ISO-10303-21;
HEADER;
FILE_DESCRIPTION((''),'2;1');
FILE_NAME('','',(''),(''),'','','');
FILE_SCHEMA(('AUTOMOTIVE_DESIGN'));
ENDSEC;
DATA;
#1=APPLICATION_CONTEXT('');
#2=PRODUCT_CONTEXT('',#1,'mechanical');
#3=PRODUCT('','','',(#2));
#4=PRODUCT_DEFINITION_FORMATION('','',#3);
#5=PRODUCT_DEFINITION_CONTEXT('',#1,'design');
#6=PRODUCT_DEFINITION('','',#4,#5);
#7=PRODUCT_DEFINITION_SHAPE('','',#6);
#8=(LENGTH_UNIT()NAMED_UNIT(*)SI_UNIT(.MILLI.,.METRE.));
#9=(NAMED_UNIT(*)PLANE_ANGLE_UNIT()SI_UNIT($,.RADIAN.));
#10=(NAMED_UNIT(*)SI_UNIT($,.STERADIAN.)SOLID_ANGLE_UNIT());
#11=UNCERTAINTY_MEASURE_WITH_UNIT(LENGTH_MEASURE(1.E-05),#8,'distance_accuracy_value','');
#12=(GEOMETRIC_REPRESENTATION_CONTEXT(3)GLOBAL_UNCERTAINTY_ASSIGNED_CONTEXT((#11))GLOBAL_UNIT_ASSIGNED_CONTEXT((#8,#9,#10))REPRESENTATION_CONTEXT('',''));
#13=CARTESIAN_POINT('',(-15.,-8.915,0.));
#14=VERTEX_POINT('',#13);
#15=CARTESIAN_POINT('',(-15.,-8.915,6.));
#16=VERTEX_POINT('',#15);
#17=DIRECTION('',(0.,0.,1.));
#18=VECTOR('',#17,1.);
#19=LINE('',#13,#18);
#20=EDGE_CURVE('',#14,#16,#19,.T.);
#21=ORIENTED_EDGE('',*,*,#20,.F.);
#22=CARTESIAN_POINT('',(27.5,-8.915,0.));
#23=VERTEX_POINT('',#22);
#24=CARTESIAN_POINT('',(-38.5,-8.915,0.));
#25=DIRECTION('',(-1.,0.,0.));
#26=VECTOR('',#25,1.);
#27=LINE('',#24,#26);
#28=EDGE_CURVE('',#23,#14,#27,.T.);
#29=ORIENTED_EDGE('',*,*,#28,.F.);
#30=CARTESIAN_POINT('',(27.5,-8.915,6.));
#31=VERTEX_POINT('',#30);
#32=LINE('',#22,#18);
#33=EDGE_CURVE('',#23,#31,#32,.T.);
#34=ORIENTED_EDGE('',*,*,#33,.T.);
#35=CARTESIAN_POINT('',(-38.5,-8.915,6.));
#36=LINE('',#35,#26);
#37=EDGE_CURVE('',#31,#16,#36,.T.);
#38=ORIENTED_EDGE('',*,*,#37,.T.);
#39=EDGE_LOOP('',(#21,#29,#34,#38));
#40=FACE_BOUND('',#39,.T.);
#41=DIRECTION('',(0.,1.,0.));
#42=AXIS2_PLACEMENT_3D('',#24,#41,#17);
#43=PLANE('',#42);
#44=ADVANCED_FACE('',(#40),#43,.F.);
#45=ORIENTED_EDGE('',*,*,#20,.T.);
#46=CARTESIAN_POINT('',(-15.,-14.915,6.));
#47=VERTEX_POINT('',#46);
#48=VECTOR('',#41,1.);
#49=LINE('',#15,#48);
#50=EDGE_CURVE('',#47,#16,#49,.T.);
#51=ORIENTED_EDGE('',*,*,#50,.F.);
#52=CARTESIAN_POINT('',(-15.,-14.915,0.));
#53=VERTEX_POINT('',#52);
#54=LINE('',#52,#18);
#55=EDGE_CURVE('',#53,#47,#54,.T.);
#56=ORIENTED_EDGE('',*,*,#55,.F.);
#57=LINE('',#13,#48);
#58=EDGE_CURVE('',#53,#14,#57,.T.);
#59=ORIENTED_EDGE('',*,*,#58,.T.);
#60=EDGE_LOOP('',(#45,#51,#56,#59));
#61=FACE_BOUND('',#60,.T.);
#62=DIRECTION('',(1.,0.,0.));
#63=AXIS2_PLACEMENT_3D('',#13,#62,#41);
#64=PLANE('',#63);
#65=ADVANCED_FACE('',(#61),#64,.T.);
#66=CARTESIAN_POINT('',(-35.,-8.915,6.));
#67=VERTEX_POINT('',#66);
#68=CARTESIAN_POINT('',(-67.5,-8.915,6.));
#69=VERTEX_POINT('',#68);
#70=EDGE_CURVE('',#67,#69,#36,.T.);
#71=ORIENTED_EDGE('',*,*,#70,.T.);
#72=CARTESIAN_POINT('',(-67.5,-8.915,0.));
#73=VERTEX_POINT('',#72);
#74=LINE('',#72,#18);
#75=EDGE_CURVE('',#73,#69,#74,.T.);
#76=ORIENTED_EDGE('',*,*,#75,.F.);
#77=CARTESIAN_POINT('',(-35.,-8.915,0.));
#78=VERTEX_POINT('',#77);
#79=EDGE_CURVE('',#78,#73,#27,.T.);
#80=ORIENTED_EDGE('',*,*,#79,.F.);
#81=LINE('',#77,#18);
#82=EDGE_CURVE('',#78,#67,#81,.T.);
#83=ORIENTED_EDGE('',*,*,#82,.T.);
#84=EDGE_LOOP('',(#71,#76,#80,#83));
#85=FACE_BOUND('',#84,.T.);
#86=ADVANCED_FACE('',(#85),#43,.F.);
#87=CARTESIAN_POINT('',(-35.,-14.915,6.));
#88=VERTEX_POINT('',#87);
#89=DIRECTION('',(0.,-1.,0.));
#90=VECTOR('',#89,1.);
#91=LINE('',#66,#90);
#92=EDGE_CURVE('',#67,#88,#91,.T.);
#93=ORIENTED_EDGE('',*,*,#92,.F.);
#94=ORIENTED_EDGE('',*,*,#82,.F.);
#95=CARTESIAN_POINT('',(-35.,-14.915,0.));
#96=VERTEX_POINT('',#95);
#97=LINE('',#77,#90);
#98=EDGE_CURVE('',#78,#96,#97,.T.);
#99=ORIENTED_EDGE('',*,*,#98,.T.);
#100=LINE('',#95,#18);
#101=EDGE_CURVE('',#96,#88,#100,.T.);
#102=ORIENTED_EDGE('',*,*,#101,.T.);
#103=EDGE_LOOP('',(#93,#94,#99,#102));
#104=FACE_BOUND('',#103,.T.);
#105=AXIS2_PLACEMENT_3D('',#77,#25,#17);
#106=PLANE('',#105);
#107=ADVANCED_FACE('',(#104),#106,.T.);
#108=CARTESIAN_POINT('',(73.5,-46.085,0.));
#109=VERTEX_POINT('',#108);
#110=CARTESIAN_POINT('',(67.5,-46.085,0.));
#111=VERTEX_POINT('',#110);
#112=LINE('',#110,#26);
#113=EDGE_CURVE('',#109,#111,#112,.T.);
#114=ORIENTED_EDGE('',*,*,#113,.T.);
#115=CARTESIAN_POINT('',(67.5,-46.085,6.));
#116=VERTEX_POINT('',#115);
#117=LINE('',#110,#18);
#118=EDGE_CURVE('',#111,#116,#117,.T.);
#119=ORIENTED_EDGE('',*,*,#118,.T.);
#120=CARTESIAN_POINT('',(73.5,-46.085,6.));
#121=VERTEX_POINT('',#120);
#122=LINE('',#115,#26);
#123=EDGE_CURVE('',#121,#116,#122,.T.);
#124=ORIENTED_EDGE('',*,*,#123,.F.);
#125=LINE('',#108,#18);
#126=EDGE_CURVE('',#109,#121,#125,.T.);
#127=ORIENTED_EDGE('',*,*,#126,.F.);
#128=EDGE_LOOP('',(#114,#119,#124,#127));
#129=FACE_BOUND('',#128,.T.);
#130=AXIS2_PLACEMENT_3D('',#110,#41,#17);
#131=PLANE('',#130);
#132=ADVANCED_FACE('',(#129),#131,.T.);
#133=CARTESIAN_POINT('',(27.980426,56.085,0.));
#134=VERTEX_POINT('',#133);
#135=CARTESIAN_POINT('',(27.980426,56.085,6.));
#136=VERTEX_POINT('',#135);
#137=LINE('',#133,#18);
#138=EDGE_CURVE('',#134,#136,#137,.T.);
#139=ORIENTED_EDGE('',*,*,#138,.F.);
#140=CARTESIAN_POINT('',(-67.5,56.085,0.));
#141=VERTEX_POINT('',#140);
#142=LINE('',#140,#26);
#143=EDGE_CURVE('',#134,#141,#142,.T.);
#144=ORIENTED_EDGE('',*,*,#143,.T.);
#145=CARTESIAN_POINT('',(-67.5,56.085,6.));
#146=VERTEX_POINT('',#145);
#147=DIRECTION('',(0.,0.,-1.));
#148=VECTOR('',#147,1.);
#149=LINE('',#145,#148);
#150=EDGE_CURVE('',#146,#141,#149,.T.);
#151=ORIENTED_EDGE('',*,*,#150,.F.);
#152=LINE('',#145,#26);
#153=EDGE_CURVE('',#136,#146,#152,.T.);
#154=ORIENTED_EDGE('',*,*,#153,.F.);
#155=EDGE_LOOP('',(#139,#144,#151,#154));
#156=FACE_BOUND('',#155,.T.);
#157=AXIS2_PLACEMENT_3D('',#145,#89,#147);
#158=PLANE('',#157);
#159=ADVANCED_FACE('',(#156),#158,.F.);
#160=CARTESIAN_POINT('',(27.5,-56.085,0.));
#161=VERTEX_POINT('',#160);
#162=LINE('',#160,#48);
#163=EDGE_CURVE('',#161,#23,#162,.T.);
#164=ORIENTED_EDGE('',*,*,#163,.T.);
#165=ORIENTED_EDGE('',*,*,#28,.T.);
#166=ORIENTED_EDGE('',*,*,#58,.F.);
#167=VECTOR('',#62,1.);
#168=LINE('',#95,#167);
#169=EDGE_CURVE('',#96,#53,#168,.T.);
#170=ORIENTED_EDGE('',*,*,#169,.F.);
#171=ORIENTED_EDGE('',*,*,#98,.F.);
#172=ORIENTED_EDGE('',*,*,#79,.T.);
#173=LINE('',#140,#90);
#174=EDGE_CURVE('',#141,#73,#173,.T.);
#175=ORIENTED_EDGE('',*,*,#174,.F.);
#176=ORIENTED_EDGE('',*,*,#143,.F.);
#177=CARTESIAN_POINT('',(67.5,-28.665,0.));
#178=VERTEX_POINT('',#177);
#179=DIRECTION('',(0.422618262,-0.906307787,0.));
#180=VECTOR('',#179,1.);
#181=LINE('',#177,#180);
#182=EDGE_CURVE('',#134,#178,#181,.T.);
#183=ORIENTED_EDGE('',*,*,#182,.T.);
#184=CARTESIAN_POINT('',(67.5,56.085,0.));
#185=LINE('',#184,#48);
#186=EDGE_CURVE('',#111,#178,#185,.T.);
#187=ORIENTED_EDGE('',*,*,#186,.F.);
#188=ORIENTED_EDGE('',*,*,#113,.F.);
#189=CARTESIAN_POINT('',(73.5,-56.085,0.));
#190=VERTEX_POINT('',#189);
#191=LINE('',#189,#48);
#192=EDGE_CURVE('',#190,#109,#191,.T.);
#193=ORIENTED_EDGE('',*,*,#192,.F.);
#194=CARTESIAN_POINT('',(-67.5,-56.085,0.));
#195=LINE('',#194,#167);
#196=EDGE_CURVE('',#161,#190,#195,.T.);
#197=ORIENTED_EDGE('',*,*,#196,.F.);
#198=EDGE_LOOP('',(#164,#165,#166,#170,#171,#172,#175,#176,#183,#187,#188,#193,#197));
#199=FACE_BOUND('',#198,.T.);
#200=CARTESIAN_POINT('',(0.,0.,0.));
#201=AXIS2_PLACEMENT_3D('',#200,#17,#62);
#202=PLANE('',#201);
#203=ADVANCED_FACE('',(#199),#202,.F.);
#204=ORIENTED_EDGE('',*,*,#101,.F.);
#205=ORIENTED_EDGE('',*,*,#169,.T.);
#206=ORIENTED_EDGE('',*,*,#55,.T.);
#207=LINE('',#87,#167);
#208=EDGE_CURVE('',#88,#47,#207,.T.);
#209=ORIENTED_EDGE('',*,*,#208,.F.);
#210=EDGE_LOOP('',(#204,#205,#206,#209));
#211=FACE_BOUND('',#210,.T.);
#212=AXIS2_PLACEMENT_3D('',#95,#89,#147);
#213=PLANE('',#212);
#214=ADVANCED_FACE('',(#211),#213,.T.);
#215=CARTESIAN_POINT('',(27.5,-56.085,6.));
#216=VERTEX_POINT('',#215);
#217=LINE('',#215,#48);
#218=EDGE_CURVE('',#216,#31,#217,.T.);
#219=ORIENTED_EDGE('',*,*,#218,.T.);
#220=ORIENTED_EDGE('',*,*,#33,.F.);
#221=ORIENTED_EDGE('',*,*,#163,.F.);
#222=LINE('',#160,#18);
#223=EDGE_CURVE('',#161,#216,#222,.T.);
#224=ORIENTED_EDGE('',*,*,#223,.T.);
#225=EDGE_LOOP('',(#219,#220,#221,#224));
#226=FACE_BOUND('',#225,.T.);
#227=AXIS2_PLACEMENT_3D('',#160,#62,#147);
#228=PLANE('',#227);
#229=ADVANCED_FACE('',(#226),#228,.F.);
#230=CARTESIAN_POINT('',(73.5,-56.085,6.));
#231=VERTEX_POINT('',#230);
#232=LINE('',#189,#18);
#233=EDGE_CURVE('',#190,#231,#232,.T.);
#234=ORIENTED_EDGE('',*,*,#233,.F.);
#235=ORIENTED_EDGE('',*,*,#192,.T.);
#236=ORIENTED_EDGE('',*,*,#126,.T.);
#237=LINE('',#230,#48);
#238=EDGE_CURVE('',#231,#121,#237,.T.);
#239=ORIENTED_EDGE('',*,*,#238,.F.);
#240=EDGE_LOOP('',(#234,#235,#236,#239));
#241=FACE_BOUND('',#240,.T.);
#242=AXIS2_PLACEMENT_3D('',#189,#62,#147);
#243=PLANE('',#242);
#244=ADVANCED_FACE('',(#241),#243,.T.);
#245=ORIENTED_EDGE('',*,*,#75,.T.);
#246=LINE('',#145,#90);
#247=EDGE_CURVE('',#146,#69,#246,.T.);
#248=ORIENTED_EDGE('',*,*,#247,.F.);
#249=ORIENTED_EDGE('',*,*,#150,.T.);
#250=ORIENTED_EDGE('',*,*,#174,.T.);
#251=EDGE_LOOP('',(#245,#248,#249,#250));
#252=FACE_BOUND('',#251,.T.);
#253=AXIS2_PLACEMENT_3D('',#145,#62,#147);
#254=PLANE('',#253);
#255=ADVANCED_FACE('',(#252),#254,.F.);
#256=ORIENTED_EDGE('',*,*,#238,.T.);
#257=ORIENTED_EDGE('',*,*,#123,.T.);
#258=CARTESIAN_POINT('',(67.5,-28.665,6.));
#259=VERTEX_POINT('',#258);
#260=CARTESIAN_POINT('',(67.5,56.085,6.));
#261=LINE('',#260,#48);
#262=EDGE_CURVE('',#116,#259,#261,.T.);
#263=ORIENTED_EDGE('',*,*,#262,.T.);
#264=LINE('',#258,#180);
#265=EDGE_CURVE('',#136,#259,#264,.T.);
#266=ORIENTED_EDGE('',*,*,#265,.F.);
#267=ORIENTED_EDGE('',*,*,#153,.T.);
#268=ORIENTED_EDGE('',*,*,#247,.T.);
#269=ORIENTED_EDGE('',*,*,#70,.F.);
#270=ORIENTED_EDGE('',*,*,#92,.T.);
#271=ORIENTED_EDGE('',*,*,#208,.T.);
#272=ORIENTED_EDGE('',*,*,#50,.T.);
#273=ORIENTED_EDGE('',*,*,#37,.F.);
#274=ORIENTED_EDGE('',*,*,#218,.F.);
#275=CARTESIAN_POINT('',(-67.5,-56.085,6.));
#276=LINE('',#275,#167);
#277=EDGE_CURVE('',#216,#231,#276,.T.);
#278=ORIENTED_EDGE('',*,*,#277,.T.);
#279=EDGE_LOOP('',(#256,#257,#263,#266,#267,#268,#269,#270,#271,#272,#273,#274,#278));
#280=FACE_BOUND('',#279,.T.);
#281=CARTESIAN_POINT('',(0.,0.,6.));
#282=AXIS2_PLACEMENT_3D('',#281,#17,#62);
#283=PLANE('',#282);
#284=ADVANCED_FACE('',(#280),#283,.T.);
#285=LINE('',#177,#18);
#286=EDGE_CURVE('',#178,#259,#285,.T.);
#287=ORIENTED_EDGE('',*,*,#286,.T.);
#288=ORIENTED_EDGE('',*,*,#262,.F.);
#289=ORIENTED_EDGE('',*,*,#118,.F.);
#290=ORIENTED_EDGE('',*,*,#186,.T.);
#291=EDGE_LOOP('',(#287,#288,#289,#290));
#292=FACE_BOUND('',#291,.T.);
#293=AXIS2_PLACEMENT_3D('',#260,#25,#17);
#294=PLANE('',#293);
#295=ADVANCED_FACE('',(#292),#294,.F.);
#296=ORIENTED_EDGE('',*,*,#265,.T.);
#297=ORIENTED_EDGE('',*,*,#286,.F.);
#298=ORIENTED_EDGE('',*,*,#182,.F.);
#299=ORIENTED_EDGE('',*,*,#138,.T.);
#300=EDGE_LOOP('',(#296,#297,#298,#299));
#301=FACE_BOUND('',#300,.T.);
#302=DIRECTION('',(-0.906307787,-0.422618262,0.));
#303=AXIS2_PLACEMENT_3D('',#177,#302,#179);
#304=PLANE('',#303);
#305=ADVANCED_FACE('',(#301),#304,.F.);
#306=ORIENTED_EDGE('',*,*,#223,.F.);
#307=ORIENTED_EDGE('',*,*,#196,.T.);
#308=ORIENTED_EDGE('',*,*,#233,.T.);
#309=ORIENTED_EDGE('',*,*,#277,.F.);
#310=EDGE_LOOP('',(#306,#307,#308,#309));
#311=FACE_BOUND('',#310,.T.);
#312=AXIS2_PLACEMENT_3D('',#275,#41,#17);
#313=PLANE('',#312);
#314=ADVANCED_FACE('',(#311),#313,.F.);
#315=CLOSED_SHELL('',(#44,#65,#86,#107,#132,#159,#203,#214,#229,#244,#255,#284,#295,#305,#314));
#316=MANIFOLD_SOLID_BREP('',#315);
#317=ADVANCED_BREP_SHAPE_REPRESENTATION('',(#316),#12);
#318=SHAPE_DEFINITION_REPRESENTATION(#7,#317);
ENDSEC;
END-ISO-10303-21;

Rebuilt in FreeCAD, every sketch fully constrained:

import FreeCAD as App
import Part
import Sketcher

V = App.Vector
Q = App.Units.Quantity

doc = App.newDocument("Part")
body = doc.addObject("PartDesign::Body", "Body")

# Sketch on XY plane
sketch1 = body.newObject("Sketcher::SketchObject", "Sketch")
sketch1.AttachmentSupport = (doc.getObject("XY_Plane"), [""])
sketch1.MapMode = "FlatFace"
sketch1.addGeometry(Part.LineSegment(V(-68, 56, 0), V(-68, -56, 0)), False)
sketch1.addGeometry(Part.LineSegment(V(-68, -56, 0), V(68, -56, 0)), False)
sketch1.addGeometry(Part.LineSegment(V(68, -56, 0), V(68, 56, 0)), False)
sketch1.addGeometry(Part.LineSegment(V(68, 56, 0), V(-68, 56, 0)), False)
sketch1.addConstraint(Sketcher.Constraint("Coincident", 0, 2, 1, 1))
sketch1.addConstraint(Sketcher.Constraint("Coincident", 1, 2, 2, 1))
sketch1.addConstraint(Sketcher.Constraint("Coincident", 2, 2, 3, 1))
sketch1.addConstraint(Sketcher.Constraint("Coincident", 3, 2, 0, 1))
sketch1.addConstraint(Sketcher.Constraint("Vertical", 0))
sketch1.addConstraint(Sketcher.Constraint("Horizontal", 1))
sketch1.addConstraint(Sketcher.Constraint("Vertical", 2))
sketch1.addConstraint(Sketcher.Constraint("Horizontal", 3))
sketch1.addConstraint(Sketcher.Constraint("Symmetric", 0, 2, 2, 2, -1, 1))
sketch1.addConstraint(Sketcher.Constraint("DistanceX", 1, 1, 1, 2, Q("135 mm")))
sketch1.addConstraint(Sketcher.Constraint("DistanceY", 0, 2, 0, 1, Q("112.17 mm")))
pad1 = body.newObject("PartDesign::Pad", "Pad")
pad1.Profile = sketch1
pad1.Length = 6

# Sketch on XY plane
sketch2 = body.newObject("Sketcher::SketchObject", "Sketch001")
sketch2.AttachmentSupport = (doc.getObject("XY_Plane"), [""])
sketch2.MapMode = "FlatFace"
sketch2.AttachmentOffset = App.Placement(V(0, 0, 6), App.Rotation())
sketch2.addGeometry(Part.LineSegment(V(-68, -56, 0), V(28, -56, 0)), False)
sketch2.addGeometry(Part.LineSegment(V(28, -56, 0), V(28, -9, 0)), False)
sketch2.addGeometry(Part.LineSegment(V(28, -9, 0), V(-68, -9, 0)), False)
sketch2.addGeometry(Part.LineSegment(V(-68, -9, 0), V(-68, -56, 0)), False)
sketch2.addGeometry(Part.LineSegment(V(28, 56, 0), V(68, -29, 0)), False)
sketch2.addGeometry(Part.LineSegment(V(68, -29, 0), V(68, 56, 0)), False)
sketch2.addGeometry(Part.LineSegment(V(68, 56, 0), V(28, 56, 0)), False)
sketch2.addConstraint(Sketcher.Constraint("Coincident", 0, 2, 1, 1))
sketch2.addConstraint(Sketcher.Constraint("Coincident", 1, 2, 2, 1))
sketch2.addConstraint(Sketcher.Constraint("Coincident", 2, 2, 3, 1))
sketch2.addConstraint(Sketcher.Constraint("Coincident", 3, 2, 0, 1))
sketch2.addConstraint(Sketcher.Constraint("Coincident", 4, 2, 5, 1))
sketch2.addConstraint(Sketcher.Constraint("Coincident", 5, 2, 6, 1))
sketch2.addConstraint(Sketcher.Constraint("Coincident", 6, 2, 4, 1))
sketch2.addConstraint(Sketcher.Constraint("Horizontal", 0))
sketch2.addConstraint(Sketcher.Constraint("Vertical", 1))
sketch2.addConstraint(Sketcher.Constraint("Horizontal", 2))
sketch2.addConstraint(Sketcher.Constraint("Vertical", 3))
sketch2.addConstraint(Sketcher.Constraint("Vertical", 5))
sketch2.addConstraint(Sketcher.Constraint("Horizontal", 6))
sketch2.addConstraint(Sketcher.Constraint("Symmetric", 3, 2, 5, 2, -1, 1))
sketch2.addConstraint(Sketcher.Constraint("DistanceX", 0, 1, 0, 2, Q("95 mm")))
sketch2.addConstraint(Sketcher.Constraint("Angle", 4, Q("-65 deg")))
sketch2.addConstraint(Sketcher.Constraint("DistanceX", 1, 2, 4, 2, Q("40 mm")))
sketch2.addConstraint(Sketcher.Constraint("DistanceY", 1, 2, 5, 2, Q("65 mm")))
sketch2.addConstraint(Sketcher.Constraint("DistanceY", 1, 1, 1, 2, Q("47.17 mm")))
sketch2.addConstraint(Sketcher.Constraint("DistanceY", 5, 1, 5, 2, Q("84.75 mm")))
pocket1 = body.newObject("PartDesign::Pocket", "Pocket")
pocket1.Profile = sketch2
pocket1.Length = 6

# Sketch on XY plane
sketch3 = body.newObject("Sketcher::SketchObject", "Sketch002")
sketch3.AttachmentSupport = (doc.getObject("XY_Plane"), [""])
sketch3.MapMode = "FlatFace"
sketch3.AttachmentOffset = App.Placement(V(0, 0, 6), App.Rotation())
sketch3.addGeometry(Part.LineSegment(V(68, -46, 0), V(68, -56, 0)), False)
sketch3.addGeometry(Part.LineSegment(V(68, -56, 0), V(74, -56, 0)), False)
sketch3.addGeometry(Part.LineSegment(V(74, -56, 0), V(74, -46, 0)), False)
sketch3.addGeometry(Part.LineSegment(V(74, -46, 0), V(68, -46, 0)), False)
sketch3.addGeometry(Part.LineSegment(V(-35, -9, 0), V(-35, -15, 0)), False)
sketch3.addGeometry(Part.LineSegment(V(-35, -15, 0), V(-15, -15, 0)), False)
sketch3.addGeometry(Part.LineSegment(V(-15, -15, 0), V(-15, -9, 0)), False)
sketch3.addGeometry(Part.LineSegment(V(-15, -9, 0), V(-35, -9, 0)), False)
sketch3.addConstraint(Sketcher.Constraint("Coincident", 0, 2, 1, 1))
sketch3.addConstraint(Sketcher.Constraint("Coincident", 1, 2, 2, 1))
sketch3.addConstraint(Sketcher.Constraint("Coincident", 2, 2, 3, 1))
sketch3.addConstraint(Sketcher.Constraint("Coincident", 3, 2, 0, 1))
sketch3.addConstraint(Sketcher.Constraint("Coincident", 4, 2, 5, 1))
sketch3.addConstraint(Sketcher.Constraint("Coincident", 5, 2, 6, 1))
sketch3.addConstraint(Sketcher.Constraint("Coincident", 6, 2, 7, 1))
sketch3.addConstraint(Sketcher.Constraint("Coincident", 7, 2, 4, 1))
sketch3.addConstraint(Sketcher.Constraint("Vertical", 0))
sketch3.addConstraint(Sketcher.Constraint("Horizontal", 1))
sketch3.addConstraint(Sketcher.Constraint("Vertical", 2))
sketch3.addConstraint(Sketcher.Constraint("Horizontal", 3))
sketch3.addConstraint(Sketcher.Constraint("Vertical", 4))
sketch3.addConstraint(Sketcher.Constraint("Horizontal", 5))
sketch3.addConstraint(Sketcher.Constraint("Vertical", 6))
sketch3.addConstraint(Sketcher.Constraint("Horizontal", 7))
sketch3.addConstraint(Sketcher.Constraint("Equal", 3, 4))
sketch3.addConstraint(Sketcher.Constraint("DistanceX", 1, 1, 1, 2, Q("6 mm")))
sketch3.addConstraint(Sketcher.Constraint("DistanceX", 5, 1, 5, 2, Q("20 mm")))
sketch3.addConstraint(Sketcher.Constraint("DistanceY", 0, 2, 0, 1, Q("10 mm")))
sketch3.addConstraint(Sketcher.Constraint("DistanceX", 4, 2, -1, 1, Q("35 mm")))
sketch3.addConstraint(Sketcher.Constraint("DistanceX", -1, 1, 0, 2, Q("67.5 mm")))
sketch3.addConstraint(Sketcher.Constraint("DistanceY", 3, 2, 4, 2, Q("31.17 mm")))
sketch3.addConstraint(Sketcher.Constraint("DistanceY", 0, 2, -1, 1, Q("56.085 mm")))
pad2 = body.newObject("PartDesign::Pad", "Pad001")
pad2.Profile = sketch3
pad2.Length = 6
pad2.Reversed = True

doc.recompute()
